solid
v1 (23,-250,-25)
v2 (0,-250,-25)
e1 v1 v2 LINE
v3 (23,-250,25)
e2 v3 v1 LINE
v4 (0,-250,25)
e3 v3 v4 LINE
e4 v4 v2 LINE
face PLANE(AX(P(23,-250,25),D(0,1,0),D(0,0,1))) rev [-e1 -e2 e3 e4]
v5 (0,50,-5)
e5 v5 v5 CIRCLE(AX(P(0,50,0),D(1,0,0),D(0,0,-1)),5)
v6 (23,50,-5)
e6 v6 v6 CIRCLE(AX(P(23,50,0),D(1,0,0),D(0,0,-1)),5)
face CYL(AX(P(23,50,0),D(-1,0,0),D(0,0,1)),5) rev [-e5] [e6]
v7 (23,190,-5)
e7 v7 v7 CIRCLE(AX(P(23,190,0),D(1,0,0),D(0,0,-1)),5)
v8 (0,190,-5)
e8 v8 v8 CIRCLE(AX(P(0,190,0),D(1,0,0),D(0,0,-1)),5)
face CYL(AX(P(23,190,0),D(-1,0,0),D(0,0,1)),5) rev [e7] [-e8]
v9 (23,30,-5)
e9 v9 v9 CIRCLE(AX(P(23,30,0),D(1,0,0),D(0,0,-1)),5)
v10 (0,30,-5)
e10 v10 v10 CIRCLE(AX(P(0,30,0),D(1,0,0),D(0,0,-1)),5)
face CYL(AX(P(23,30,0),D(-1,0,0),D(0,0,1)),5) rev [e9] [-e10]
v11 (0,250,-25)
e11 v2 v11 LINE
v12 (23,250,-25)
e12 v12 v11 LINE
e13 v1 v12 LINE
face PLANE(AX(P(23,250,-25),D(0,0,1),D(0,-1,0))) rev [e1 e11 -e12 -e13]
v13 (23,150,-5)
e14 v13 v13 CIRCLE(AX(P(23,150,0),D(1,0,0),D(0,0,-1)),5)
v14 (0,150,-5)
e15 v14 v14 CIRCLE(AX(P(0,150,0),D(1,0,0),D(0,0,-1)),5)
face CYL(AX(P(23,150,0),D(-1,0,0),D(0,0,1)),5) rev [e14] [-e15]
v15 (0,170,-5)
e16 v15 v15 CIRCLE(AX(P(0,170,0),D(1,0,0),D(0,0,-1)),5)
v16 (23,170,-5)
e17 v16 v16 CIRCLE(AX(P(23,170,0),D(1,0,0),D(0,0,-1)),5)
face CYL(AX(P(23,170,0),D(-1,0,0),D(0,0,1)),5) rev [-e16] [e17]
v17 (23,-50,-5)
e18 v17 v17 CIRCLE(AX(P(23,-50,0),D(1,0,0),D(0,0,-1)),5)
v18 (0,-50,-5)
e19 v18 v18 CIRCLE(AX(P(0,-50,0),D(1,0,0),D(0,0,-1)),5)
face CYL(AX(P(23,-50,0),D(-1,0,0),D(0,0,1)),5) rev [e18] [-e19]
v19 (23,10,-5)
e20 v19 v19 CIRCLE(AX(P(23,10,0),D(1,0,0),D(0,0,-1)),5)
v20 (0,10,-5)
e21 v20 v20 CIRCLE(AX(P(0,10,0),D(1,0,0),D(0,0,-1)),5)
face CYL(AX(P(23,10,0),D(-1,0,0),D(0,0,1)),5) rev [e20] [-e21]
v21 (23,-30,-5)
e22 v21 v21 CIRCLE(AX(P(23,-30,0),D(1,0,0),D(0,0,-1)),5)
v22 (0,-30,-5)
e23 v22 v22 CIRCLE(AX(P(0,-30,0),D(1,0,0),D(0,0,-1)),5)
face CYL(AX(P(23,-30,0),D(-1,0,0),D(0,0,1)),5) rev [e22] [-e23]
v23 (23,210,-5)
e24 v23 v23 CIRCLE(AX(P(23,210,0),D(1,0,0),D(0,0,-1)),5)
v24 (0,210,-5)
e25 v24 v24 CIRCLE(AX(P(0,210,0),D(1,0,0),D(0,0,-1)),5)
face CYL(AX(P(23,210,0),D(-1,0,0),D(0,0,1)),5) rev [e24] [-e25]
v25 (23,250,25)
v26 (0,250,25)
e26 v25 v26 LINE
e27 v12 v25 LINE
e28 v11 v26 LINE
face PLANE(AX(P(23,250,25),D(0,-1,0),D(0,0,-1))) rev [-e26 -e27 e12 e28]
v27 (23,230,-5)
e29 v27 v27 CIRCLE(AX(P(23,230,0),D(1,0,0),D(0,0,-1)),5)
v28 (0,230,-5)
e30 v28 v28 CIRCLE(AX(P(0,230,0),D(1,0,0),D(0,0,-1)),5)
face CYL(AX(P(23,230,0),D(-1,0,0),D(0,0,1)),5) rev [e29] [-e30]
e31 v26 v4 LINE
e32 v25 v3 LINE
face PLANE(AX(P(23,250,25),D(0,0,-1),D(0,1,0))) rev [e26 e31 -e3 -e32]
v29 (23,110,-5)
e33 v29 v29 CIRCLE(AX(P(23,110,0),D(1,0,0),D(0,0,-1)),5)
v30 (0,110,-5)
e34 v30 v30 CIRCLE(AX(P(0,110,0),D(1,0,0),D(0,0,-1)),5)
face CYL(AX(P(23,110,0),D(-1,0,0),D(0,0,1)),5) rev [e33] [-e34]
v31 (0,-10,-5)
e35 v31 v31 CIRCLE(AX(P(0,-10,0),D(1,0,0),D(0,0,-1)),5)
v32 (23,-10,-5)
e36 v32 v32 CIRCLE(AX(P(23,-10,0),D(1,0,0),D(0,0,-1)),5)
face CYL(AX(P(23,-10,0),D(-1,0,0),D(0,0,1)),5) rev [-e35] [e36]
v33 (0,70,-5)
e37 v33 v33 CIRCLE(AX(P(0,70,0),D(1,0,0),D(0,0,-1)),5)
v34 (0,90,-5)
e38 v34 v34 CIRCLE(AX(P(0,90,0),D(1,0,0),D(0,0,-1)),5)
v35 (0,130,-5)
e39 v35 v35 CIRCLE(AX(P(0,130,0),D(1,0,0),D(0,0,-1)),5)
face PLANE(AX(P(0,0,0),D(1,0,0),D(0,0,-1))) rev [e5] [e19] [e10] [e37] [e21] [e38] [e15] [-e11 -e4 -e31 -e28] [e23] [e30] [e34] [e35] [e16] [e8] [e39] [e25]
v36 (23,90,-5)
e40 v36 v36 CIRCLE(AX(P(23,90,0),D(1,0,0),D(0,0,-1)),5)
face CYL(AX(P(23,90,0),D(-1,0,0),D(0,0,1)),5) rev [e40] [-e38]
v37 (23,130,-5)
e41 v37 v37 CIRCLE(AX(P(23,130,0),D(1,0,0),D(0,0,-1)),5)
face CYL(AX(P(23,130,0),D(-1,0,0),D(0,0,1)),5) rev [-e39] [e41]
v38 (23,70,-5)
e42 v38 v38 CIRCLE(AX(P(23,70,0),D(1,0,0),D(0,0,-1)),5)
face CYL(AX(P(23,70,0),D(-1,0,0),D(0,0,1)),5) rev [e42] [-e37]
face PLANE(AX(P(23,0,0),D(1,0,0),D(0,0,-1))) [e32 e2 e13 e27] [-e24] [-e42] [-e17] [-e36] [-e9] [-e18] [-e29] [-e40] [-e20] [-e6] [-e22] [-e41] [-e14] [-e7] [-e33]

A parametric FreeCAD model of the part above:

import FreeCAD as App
import Part
import Sketcher


def add_polygon(sketch, points):
    """Adds a closed chain of lines whose ends are joined by coincident constraints."""
    first, n = sketch.GeometryCount, len(points)
    for a, b in zip(points, points[1:] + points[:1]):
        sketch.addGeometry(Part.LineSegment(App.Vector(*a, 0), App.Vector(*b, 0)), False)
    for i in range(n):
        sketch.addConstraint(Sketcher.Constraint("Coincident", first + i, 2, first + (i + 1) % n, 1))

doc = App.newDocument("Part")
body = doc.addObject("PartDesign::Body", "Body")

# Sketch on YZ plane
sketch1 = body.newObject("Sketcher::SketchObject", "Sketch")
sketch1.AttachmentSupport = (doc.getObject("YZ_Plane"), [""])
sketch1.MapMode = "FlatFace"
add_polygon(sketch1, [(250, 25), (-250, 25), (-250, -25), (250, -25)])  # lines 0-3
sketch1.addGeometry(Part.Circle(App.Vector(-50, 0, 0), App.Vector(0, 0, 1), 5), False)  # 4
sketch1.addGeometry(Part.Circle(App.Vector(-30, 0, 0), App.Vector(0, 0, 1), 5), False)  # 5
sketch1.addGeometry(Part.Circle(App.Vector(-10, 0, 0), App.Vector(0, 0, 1), 5), False)  # 6
sketch1.addGeometry(Part.Circle(App.Vector(10, 0, 0), App.Vector(0, 0, 1), 5), False)  # 7
sketch1.addGeometry(Part.Circle(App.Vector(30, 0, 0), App.Vector(0, 0, 1), 5), False)  # 8
sketch1.addGeometry(Part.Circle(App.Vector(50, 0, 0), App.Vector(0, 0, 1), 5), False)  # 9
sketch1.addGeometry(Part.Circle(App.Vector(70, 0, 0), App.Vector(0, 0, 1), 5), False)  # 10
sketch1.addGeometry(Part.Circle(App.Vector(90, 0, 0), App.Vector(0, 0, 1), 5), False)  # 11
sketch1.addGeometry(Part.Circle(App.Vector(110, 0, 0), App.Vector(0, 0, 1), 5), False)  # 12
sketch1.addGeometry(Part.Circle(App.Vector(130, 0, 0), App.Vector(0, 0, 1), 5), False)  # 13
sketch1.addGeometry(Part.Circle(App.Vector(150, 0, 0), App.Vector(0, 0, 1), 5), False)  # 14
sketch1.addGeometry(Part.Circle(App.Vector(170, 0, 0), App.Vector(0, 0, 1), 5), False)  # 15
sketch1.addGeometry(Part.Circle(App.Vector(190, 0, 0), App.Vector(0, 0, 1), 5), False)  # 16
sketch1.addGeometry(Part.Circle(App.Vector(210, 0, 0), App.Vector(0, 0, 1), 5), False)  # 17
sketch1.addGeometry(Part.Circle(App.Vector(230, 0, 0), App.Vector(0, 0, 1), 5), False)  # 18
sketch1.addConstraint(Sketcher.Constraint("Horizontal", 0))
sketch1.addConstraint(Sketcher.Constraint("Vertical", 1))
sketch1.addConstraint(Sketcher.Constraint("Horizontal", 2))
sketch1.addConstraint(Sketcher.Constraint("Vertical", 3))
sketch1.addConstraint(Sketcher.Constraint("Equal", 4, 5))
sketch1.addConstraint(Sketcher.Constraint("Equal", 5, 6))
sketch1.addConstraint(Sketcher.Constraint("Equal", 6, 7))
sketch1.addConstraint(Sketcher.Constraint("Equal", 7, 8))
sketch1.addConstraint(Sketcher.Constraint("Equal", 8, 9))
sketch1.addConstraint(Sketcher.Constraint("Equal", 9, 10))
sketch1.addConstraint(Sketcher.Constraint("Equal", 10, 11))
sketch1.addConstraint(Sketcher.Constraint("Equal", 11, 12))
sketch1.addConstraint(Sketcher.Constraint("Equal", 12, 13))
sketch1.addConstraint(Sketcher.Constraint("Equal", 13, 14))
sketch1.addConstraint(Sketcher.Constraint("Equal", 14, 15))
sketch1.addConstraint(Sketcher.Constraint("Equal", 15, 16))
sketch1.addConstraint(Sketcher.Constraint("Equal", 16, 17))
sketch1.addConstraint(Sketcher.Constraint("Equal", 17, 18))
sketch1.addConstraint(Sketcher.Constraint("Symmetric", 6, 3, 7, 3, -1, 1))
sketch1.addConstraint(Sketcher.Constraint("Symmetric", 5, 3, 8, 3, -1, 1))
sketch1.addConstraint(Sketcher.Constraint("Symmetric", 4, 3, 9, 3, -1, 1))
sketch1.addConstraint(Sketcher.Constraint("Symmetric", 0, 2, 2, 2, -1, 1))
sketch1.addConstraint(Sketcher.Constraint("PointOnObject", 4, 3, -1))
sketch1.addConstraint(Sketcher.Constraint("PointOnObject", 5, 3, -1))
sketch1.addConstraint(Sketcher.Constraint("PointOnObject", 6, 3, -1))
sketch1.addConstraint(Sketcher.Constraint("PointOnObject", 10, 3, -1))
sketch1.addConstraint(Sketcher.Constraint("PointOnObject", 11, 3, -1))
sketch1.addConstraint(Sketcher.Constraint("PointOnObject", 12, 3, -1))
sketch1.addConstraint(Sketcher.Constraint("PointOnObject", 13, 3, -1))
sketch1.addConstraint(Sketcher.Constraint("PointOnObject", 14, 3, -1))
sketch1.addConstraint(Sketcher.Constraint("PointOnObject", 15, 3, -1))
sketch1.addConstraint(Sketcher.Constraint("PointOnObject", 16, 3, -1))
sketch1.addConstraint(Sketcher.Constraint("PointOnObject", 17, 3, -1))
sketch1.addConstraint(Sketcher.Constraint("PointOnObject", 18, 3, -1))
sketch1.addConstraint(Sketcher.Constraint("Diameter", 4, 10.0))
sketch1.addConstraint(Sketcher.Constraint("DistanceX", 0, 2, 0, 1, 500.0))
sketch1.addConstraint(Sketcher.Constraint("DistanceY", 1, 2, 1, 1, 50.0))
sketch1.addConstraint(Sketcher.Constraint("DistanceX", 4, 3, -1, 1, 50.0))
sketch1.addConstraint(Sketcher.Constraint("DistanceX", 5, 3, -1, 1, 30.0))
sketch1.addConstraint(Sketcher.Constraint("DistanceX", 6, 3, -1, 1, 10.0))
sketch1.addConstraint(Sketcher.Constraint("DistanceX", -1, 1, 10, 3, 70.0))
sketch1.addConstraint(Sketcher.Constraint("DistanceX", -1, 1, 11, 3, 90.0))
sketch1.addConstraint(Sketcher.Constraint("DistanceX", -1, 1, 12, 3, 110.0))
sketch1.addConstraint(Sketcher.Constraint("DistanceX", -1, 1, 13, 3, 130.0))
sketch1.addConstraint(Sketcher.Constraint("DistanceX", -1, 1, 14, 3, 150.0))
sketch1.addConstraint(Sketcher.Constraint("DistanceX", -1, 1, 15, 3, 170.0))
sketch1.addConstraint(Sketcher.Constraint("DistanceX", -1, 1, 16, 3, 190.0))
sketch1.addConstraint(Sketcher.Constraint("DistanceX", -1, 1, 17, 3, 210.0))
sketch1.addConstraint(Sketcher.Constraint("DistanceX", -1, 1, 18, 3, 230.0))
pad1 = body.newObject("PartDesign::Pad", "Pad")
pad1.Profile = sketch1
pad1.Length = 23

doc.recompute()
